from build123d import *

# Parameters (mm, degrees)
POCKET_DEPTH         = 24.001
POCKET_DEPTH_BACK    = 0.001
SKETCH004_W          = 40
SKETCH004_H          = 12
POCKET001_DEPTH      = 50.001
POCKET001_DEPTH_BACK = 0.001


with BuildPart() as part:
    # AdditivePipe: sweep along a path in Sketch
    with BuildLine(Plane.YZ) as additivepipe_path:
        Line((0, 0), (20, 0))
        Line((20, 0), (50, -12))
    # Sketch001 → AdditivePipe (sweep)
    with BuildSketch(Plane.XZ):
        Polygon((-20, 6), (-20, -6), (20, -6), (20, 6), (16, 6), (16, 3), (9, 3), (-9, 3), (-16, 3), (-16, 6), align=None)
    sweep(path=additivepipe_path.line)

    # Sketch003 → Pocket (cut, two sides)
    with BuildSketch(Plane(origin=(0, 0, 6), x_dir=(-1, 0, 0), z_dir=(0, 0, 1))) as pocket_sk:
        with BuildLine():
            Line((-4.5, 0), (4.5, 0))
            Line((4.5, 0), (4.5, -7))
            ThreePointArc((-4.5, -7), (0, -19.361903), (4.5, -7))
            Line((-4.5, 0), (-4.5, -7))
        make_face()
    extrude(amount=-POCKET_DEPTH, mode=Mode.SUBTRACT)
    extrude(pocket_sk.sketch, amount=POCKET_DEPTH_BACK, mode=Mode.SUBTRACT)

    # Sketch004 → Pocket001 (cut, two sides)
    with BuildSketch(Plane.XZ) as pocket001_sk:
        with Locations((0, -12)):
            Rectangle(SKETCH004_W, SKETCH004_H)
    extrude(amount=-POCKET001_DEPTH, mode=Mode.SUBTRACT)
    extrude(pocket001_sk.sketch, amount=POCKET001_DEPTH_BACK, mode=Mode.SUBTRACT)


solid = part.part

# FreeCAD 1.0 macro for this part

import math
import FreeCAD as App
import Part
import Sketcher


def add_polygon(sketch, points):
    """Adds a closed chain of lines whose ends are joined by coincident constraints."""
    first, n = sketch.GeometryCount, len(points)
    for a, b in zip(points, points[1:] + points[:1]):
        sketch.addGeometry(Part.LineSegment(App.Vector(*a, 0), App.Vector(*b, 0)), False)
    for i in range(n):
        sketch.addConstraint(Sketcher.Constraint("Coincident", first + i, 2, first + (i + 1) % n, 1))

doc = App.newDocument("Part")
body = doc.addObject("PartDesign::Body", "Body")

sketch1 = body.newObject("Sketcher::SketchObject", "Sketch")
sketch1.AttachmentSupport = (doc.getObject("XZ_Plane"), [""])
sketch1.MapMode = "FlatFace"
add_polygon(sketch1, [(-20, 6), (-20, -6), (20, -6), (20, 6), (16, 6), (16, 3), (-16, 3), (-16, 6)])
sketch1.addConstraint([
    Sketcher.Constraint("Vertical", 0),
    Sketcher.Constraint("Horizontal", 1),
    Sketcher.Constraint("Vertical", 2),
    Sketcher.Constraint("Horizontal", 3),
    Sketcher.Constraint("Vertical", 4),
    Sketcher.Constraint("Horizontal", 5),
    Sketcher.Constraint("Vertical", 6),
    Sketcher.Constraint("Horizontal", 7),
    Sketcher.Constraint("Symmetric", 0, 2, 2, 2, -1, 1),
    Sketcher.Constraint("Symmetric", 3, 2, 6, 2, -2),
    Sketcher.Constraint("DistanceX", 1, 1, 1, 2, 40.0),
    Sketcher.Constraint("DistanceX", 3, 2, 3, 1, 4.0),
    Sketcher.Constraint("DistanceY", 0, 2, 0, 1, 12.0),
    Sketcher.Constraint("DistanceY", 4, 2, 4, 1, 3.0),
])

sketch2 = body.newObject("Sketcher::SketchObject", "Sketch001")
sketch2.AttachmentSupport = (doc.getObject("YZ_Plane"), [""])
sketch2.MapMode = "FlatFace"
sketch2.addGeometry([
    Part.LineSegment(App.Vector(0, 0, 0), App.Vector(20, 0, 0)),
    Part.LineSegment(App.Vector(20, 0, 0), App.Vector(50, -12, 0)),
], False)
sketch2.addConstraint([
    Sketcher.Constraint("Coincident", 0, 2, 1, 1),
    Sketcher.Constraint("Horizontal", 0),
    Sketcher.Constraint("Coincident", 0, 1, -1, 1),
    Sketcher.Constraint("DistanceX", 0, 1, 0, 2, 20.0),
    Sketcher.Constraint("DistanceX", -1, 1, 1, 2, 50.0),
    Sketcher.Constraint("DistanceY", 1, 2, -1, 1, 12.0),
])
doc.recompute()

additivepipe = body.newObject("PartDesign::AdditivePipe", "AdditivePipe")
additivepipe.Profile = sketch1
additivepipe.Spine = (sketch2, ["Edge1", "Edge2"])

sketch3 = body.newObject("Sketcher::SketchObject", "Sketch002")
sketch3.AttachmentSupport = (doc.getObject("XY_Plane"), [""])
sketch3.MapMode = "FlatFace"
sketch3.AttachmentOffset = App.Placement(App.Vector(0, 0, 6), App.Rotation())
sketch3.addGeometry([
    Part.LineSegment(App.Vector(-4, 0, 0), App.Vector(4, 0, 0)),
    Part.LineSegment(App.Vector(4, 0, 0), App.Vector(4, 7, 0)),
    Part.ArcOfCircle(Part.Circle(App.Vector(0, 12, 0), App.Vector(0, 0, 1), 7), math.radians(-50), math.radians(230)),
    Part.LineSegment(App.Vector(-4, 7, 0), App.Vector(-4, 0, 0)),
], False)
sketch3.addConstraint([
    Sketcher.Constraint("Coincident", 0, 2, 1, 1),
    Sketcher.Constraint("Coincident", 1, 2, 2, 1),
    Sketcher.Constraint("Coincident", 2, 2, 3, 1),
    Sketcher.Constraint("Coincident", 3, 2, 0, 1),
    Sketcher.Constraint("Horizontal", 0),
    Sketcher.Constraint("Vertical", 1),
    Sketcher.Constraint("Vertical", 3),
    Sketcher.Constraint("Symmetric", 0, 2, 3, 2, -1, 1),
    Sketcher.Constraint("PointOnObject", 2, 3, -2),
    Sketcher.Constraint("Radius", 2, 7.0),
    Sketcher.Constraint("DistanceX", 0, 1, 0, 2, 9.0),
    Sketcher.Constraint("DistanceY", 1, 1, 1, 2, 7.0),
])
pocket1 = body.newObject("PartDesign::Pocket", "Pocket")
pocket1.Profile = sketch3
pocket1.Type = "ThroughAll"
pocket1.Midplane = True

sketch4 = body.newObject("Sketcher::SketchObject", "Sketch003")
sketch4.AttachmentSupport = (doc.getObject("XZ_Plane"), [""])
sketch4.MapMode = "FlatFace"
add_polygon(sketch4, [(-20, -6), (-20, -18), (20, -18), (20, -6)])
sketch4.addConstraint([
    Sketcher.Constraint("Vertical", 0),
    Sketcher.Constraint("Horizontal", 1),
    Sketcher.Constraint("Vertical", 2),
    Sketcher.Constraint("Horizontal", 3),
    Sketcher.Constraint("DistanceX", 1, 1, 1, 2, 40.0),
    Sketcher.Constraint("DistanceY", 0, 2, 0, 1, 12.0),
    Sketcher.Constraint("DistanceX", 0, 2, -1, 1, 20.0),
    Sketcher.Constraint("DistanceY", 0, 2, -1, 1, 18.0),
])
pocket2 = body.newObject("PartDesign::Pocket", "Pocket001")
pocket2.Profile = sketch4
pocket2.Type = "ThroughAll"
pocket2.Midplane = True

doc.recompute()
